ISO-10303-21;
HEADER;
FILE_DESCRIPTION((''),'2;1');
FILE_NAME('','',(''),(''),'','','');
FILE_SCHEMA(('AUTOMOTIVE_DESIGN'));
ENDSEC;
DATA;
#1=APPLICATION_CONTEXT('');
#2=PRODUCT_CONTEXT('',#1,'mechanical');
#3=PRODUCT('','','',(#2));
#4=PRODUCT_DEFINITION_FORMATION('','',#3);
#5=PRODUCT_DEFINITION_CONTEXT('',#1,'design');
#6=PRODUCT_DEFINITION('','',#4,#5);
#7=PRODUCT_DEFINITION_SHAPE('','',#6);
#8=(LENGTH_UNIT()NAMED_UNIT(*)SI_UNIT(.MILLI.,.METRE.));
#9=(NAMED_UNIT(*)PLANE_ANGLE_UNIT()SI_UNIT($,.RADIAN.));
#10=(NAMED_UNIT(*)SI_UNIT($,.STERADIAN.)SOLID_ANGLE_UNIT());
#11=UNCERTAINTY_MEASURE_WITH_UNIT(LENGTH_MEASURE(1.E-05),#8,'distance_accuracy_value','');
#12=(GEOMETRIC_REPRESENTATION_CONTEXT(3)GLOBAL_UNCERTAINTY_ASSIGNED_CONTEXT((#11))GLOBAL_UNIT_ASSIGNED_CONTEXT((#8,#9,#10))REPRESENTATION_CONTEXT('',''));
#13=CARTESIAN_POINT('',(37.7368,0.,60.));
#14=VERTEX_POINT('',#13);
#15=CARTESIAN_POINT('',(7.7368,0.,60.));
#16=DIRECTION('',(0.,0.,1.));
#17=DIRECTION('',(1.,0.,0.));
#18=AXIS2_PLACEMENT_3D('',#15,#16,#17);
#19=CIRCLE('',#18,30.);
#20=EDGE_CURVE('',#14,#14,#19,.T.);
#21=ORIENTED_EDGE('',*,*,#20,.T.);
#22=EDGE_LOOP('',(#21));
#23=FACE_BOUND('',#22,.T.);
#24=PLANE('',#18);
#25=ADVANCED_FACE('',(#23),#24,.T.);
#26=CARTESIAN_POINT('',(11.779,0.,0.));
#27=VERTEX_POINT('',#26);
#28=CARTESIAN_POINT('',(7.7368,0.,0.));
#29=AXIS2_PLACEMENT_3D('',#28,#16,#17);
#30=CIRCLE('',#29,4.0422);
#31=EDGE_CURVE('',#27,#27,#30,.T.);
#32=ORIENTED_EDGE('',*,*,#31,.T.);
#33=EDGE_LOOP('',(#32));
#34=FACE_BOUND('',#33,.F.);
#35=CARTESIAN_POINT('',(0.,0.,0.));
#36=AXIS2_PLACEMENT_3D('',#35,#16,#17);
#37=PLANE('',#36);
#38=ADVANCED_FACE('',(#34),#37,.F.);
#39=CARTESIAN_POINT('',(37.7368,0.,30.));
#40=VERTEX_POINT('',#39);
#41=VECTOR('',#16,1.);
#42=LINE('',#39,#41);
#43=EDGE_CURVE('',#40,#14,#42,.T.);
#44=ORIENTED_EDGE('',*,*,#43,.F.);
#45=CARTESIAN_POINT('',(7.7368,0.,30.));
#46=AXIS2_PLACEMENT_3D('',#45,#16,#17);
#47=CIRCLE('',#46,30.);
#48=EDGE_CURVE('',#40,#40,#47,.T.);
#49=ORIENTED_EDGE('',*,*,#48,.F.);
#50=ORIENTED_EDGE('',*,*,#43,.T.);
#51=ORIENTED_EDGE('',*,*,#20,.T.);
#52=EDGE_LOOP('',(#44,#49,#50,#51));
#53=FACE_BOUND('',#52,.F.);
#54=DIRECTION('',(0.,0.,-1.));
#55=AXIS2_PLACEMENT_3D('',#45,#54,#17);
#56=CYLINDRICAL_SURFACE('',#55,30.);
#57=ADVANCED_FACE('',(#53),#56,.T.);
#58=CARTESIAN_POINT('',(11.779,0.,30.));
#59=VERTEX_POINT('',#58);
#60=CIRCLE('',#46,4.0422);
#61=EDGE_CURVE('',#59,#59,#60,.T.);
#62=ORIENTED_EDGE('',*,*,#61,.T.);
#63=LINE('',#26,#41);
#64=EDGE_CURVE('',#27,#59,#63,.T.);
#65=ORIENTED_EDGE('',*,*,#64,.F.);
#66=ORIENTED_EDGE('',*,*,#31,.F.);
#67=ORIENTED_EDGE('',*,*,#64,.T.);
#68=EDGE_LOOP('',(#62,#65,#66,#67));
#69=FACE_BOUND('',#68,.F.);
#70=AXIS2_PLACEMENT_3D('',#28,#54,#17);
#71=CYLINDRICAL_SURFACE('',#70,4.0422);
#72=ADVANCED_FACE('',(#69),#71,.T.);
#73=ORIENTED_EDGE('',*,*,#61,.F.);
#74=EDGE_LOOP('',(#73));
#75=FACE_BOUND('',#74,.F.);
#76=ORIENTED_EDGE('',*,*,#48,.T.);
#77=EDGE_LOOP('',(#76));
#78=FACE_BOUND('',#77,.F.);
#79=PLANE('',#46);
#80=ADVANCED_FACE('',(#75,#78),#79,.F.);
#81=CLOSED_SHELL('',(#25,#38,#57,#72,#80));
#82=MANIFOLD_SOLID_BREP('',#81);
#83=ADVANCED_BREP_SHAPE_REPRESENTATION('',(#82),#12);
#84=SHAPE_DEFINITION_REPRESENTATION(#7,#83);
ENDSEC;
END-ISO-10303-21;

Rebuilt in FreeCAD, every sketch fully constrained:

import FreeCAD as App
import Part
import Sketcher

V = App.Vector

doc = App.newDocument("Part")
body = doc.addObject("PartDesign::Body", "Body")

sketch1 = body.newObject("Sketcher::SketchObject", "Sketch")
sketch1.AttachmentSupport = (doc.getObject("XY_Plane"), [""])
sketch1.MapMode = "FlatFace"
sketch1.addGeometry(Part.Circle(V(7.7368, 0, 0), V(0, 0, 1), 4.0422), False)
sketch1.addConstraint([
    Sketcher.Constraint("PointOnObject", 0, 3, -1),
    Sketcher.Constraint("Diameter", 0, 8.0844),
    Sketcher.Constraint("DistanceX", -1, 1, 0, 3, 7.7368),
])
pad1 = body.newObject("PartDesign::Pad", "Pad")
pad1.Profile = sketch1
pad1.Length = 30

sketch2 = body.newObject("Sketcher::SketchObject", "Sketch001")
sketch2.AttachmentSupport = (doc.getObject("XY_Plane"), [""])
sketch2.MapMode = "FlatFace"
sketch2.AttachmentOffset = App.Placement(V(0, 0, 30), App.Rotation())
sketch2.addGeometry(Part.Circle(V(7.7368, 0, 0), V(0, 0, 1), 30), False)
sketch2.addConstraint([
    Sketcher.Constraint("PointOnObject", 0, 3, -1),
    Sketcher.Constraint("Diameter", 0, 60.0),
    Sketcher.Constraint("DistanceX", -1, 1, 0, 3, 7.7368),
])
pad2 = body.newObject("PartDesign::Pad", "Pad001")
pad2.Profile = sketch2
pad2.Length = 30

doc.recompute()
